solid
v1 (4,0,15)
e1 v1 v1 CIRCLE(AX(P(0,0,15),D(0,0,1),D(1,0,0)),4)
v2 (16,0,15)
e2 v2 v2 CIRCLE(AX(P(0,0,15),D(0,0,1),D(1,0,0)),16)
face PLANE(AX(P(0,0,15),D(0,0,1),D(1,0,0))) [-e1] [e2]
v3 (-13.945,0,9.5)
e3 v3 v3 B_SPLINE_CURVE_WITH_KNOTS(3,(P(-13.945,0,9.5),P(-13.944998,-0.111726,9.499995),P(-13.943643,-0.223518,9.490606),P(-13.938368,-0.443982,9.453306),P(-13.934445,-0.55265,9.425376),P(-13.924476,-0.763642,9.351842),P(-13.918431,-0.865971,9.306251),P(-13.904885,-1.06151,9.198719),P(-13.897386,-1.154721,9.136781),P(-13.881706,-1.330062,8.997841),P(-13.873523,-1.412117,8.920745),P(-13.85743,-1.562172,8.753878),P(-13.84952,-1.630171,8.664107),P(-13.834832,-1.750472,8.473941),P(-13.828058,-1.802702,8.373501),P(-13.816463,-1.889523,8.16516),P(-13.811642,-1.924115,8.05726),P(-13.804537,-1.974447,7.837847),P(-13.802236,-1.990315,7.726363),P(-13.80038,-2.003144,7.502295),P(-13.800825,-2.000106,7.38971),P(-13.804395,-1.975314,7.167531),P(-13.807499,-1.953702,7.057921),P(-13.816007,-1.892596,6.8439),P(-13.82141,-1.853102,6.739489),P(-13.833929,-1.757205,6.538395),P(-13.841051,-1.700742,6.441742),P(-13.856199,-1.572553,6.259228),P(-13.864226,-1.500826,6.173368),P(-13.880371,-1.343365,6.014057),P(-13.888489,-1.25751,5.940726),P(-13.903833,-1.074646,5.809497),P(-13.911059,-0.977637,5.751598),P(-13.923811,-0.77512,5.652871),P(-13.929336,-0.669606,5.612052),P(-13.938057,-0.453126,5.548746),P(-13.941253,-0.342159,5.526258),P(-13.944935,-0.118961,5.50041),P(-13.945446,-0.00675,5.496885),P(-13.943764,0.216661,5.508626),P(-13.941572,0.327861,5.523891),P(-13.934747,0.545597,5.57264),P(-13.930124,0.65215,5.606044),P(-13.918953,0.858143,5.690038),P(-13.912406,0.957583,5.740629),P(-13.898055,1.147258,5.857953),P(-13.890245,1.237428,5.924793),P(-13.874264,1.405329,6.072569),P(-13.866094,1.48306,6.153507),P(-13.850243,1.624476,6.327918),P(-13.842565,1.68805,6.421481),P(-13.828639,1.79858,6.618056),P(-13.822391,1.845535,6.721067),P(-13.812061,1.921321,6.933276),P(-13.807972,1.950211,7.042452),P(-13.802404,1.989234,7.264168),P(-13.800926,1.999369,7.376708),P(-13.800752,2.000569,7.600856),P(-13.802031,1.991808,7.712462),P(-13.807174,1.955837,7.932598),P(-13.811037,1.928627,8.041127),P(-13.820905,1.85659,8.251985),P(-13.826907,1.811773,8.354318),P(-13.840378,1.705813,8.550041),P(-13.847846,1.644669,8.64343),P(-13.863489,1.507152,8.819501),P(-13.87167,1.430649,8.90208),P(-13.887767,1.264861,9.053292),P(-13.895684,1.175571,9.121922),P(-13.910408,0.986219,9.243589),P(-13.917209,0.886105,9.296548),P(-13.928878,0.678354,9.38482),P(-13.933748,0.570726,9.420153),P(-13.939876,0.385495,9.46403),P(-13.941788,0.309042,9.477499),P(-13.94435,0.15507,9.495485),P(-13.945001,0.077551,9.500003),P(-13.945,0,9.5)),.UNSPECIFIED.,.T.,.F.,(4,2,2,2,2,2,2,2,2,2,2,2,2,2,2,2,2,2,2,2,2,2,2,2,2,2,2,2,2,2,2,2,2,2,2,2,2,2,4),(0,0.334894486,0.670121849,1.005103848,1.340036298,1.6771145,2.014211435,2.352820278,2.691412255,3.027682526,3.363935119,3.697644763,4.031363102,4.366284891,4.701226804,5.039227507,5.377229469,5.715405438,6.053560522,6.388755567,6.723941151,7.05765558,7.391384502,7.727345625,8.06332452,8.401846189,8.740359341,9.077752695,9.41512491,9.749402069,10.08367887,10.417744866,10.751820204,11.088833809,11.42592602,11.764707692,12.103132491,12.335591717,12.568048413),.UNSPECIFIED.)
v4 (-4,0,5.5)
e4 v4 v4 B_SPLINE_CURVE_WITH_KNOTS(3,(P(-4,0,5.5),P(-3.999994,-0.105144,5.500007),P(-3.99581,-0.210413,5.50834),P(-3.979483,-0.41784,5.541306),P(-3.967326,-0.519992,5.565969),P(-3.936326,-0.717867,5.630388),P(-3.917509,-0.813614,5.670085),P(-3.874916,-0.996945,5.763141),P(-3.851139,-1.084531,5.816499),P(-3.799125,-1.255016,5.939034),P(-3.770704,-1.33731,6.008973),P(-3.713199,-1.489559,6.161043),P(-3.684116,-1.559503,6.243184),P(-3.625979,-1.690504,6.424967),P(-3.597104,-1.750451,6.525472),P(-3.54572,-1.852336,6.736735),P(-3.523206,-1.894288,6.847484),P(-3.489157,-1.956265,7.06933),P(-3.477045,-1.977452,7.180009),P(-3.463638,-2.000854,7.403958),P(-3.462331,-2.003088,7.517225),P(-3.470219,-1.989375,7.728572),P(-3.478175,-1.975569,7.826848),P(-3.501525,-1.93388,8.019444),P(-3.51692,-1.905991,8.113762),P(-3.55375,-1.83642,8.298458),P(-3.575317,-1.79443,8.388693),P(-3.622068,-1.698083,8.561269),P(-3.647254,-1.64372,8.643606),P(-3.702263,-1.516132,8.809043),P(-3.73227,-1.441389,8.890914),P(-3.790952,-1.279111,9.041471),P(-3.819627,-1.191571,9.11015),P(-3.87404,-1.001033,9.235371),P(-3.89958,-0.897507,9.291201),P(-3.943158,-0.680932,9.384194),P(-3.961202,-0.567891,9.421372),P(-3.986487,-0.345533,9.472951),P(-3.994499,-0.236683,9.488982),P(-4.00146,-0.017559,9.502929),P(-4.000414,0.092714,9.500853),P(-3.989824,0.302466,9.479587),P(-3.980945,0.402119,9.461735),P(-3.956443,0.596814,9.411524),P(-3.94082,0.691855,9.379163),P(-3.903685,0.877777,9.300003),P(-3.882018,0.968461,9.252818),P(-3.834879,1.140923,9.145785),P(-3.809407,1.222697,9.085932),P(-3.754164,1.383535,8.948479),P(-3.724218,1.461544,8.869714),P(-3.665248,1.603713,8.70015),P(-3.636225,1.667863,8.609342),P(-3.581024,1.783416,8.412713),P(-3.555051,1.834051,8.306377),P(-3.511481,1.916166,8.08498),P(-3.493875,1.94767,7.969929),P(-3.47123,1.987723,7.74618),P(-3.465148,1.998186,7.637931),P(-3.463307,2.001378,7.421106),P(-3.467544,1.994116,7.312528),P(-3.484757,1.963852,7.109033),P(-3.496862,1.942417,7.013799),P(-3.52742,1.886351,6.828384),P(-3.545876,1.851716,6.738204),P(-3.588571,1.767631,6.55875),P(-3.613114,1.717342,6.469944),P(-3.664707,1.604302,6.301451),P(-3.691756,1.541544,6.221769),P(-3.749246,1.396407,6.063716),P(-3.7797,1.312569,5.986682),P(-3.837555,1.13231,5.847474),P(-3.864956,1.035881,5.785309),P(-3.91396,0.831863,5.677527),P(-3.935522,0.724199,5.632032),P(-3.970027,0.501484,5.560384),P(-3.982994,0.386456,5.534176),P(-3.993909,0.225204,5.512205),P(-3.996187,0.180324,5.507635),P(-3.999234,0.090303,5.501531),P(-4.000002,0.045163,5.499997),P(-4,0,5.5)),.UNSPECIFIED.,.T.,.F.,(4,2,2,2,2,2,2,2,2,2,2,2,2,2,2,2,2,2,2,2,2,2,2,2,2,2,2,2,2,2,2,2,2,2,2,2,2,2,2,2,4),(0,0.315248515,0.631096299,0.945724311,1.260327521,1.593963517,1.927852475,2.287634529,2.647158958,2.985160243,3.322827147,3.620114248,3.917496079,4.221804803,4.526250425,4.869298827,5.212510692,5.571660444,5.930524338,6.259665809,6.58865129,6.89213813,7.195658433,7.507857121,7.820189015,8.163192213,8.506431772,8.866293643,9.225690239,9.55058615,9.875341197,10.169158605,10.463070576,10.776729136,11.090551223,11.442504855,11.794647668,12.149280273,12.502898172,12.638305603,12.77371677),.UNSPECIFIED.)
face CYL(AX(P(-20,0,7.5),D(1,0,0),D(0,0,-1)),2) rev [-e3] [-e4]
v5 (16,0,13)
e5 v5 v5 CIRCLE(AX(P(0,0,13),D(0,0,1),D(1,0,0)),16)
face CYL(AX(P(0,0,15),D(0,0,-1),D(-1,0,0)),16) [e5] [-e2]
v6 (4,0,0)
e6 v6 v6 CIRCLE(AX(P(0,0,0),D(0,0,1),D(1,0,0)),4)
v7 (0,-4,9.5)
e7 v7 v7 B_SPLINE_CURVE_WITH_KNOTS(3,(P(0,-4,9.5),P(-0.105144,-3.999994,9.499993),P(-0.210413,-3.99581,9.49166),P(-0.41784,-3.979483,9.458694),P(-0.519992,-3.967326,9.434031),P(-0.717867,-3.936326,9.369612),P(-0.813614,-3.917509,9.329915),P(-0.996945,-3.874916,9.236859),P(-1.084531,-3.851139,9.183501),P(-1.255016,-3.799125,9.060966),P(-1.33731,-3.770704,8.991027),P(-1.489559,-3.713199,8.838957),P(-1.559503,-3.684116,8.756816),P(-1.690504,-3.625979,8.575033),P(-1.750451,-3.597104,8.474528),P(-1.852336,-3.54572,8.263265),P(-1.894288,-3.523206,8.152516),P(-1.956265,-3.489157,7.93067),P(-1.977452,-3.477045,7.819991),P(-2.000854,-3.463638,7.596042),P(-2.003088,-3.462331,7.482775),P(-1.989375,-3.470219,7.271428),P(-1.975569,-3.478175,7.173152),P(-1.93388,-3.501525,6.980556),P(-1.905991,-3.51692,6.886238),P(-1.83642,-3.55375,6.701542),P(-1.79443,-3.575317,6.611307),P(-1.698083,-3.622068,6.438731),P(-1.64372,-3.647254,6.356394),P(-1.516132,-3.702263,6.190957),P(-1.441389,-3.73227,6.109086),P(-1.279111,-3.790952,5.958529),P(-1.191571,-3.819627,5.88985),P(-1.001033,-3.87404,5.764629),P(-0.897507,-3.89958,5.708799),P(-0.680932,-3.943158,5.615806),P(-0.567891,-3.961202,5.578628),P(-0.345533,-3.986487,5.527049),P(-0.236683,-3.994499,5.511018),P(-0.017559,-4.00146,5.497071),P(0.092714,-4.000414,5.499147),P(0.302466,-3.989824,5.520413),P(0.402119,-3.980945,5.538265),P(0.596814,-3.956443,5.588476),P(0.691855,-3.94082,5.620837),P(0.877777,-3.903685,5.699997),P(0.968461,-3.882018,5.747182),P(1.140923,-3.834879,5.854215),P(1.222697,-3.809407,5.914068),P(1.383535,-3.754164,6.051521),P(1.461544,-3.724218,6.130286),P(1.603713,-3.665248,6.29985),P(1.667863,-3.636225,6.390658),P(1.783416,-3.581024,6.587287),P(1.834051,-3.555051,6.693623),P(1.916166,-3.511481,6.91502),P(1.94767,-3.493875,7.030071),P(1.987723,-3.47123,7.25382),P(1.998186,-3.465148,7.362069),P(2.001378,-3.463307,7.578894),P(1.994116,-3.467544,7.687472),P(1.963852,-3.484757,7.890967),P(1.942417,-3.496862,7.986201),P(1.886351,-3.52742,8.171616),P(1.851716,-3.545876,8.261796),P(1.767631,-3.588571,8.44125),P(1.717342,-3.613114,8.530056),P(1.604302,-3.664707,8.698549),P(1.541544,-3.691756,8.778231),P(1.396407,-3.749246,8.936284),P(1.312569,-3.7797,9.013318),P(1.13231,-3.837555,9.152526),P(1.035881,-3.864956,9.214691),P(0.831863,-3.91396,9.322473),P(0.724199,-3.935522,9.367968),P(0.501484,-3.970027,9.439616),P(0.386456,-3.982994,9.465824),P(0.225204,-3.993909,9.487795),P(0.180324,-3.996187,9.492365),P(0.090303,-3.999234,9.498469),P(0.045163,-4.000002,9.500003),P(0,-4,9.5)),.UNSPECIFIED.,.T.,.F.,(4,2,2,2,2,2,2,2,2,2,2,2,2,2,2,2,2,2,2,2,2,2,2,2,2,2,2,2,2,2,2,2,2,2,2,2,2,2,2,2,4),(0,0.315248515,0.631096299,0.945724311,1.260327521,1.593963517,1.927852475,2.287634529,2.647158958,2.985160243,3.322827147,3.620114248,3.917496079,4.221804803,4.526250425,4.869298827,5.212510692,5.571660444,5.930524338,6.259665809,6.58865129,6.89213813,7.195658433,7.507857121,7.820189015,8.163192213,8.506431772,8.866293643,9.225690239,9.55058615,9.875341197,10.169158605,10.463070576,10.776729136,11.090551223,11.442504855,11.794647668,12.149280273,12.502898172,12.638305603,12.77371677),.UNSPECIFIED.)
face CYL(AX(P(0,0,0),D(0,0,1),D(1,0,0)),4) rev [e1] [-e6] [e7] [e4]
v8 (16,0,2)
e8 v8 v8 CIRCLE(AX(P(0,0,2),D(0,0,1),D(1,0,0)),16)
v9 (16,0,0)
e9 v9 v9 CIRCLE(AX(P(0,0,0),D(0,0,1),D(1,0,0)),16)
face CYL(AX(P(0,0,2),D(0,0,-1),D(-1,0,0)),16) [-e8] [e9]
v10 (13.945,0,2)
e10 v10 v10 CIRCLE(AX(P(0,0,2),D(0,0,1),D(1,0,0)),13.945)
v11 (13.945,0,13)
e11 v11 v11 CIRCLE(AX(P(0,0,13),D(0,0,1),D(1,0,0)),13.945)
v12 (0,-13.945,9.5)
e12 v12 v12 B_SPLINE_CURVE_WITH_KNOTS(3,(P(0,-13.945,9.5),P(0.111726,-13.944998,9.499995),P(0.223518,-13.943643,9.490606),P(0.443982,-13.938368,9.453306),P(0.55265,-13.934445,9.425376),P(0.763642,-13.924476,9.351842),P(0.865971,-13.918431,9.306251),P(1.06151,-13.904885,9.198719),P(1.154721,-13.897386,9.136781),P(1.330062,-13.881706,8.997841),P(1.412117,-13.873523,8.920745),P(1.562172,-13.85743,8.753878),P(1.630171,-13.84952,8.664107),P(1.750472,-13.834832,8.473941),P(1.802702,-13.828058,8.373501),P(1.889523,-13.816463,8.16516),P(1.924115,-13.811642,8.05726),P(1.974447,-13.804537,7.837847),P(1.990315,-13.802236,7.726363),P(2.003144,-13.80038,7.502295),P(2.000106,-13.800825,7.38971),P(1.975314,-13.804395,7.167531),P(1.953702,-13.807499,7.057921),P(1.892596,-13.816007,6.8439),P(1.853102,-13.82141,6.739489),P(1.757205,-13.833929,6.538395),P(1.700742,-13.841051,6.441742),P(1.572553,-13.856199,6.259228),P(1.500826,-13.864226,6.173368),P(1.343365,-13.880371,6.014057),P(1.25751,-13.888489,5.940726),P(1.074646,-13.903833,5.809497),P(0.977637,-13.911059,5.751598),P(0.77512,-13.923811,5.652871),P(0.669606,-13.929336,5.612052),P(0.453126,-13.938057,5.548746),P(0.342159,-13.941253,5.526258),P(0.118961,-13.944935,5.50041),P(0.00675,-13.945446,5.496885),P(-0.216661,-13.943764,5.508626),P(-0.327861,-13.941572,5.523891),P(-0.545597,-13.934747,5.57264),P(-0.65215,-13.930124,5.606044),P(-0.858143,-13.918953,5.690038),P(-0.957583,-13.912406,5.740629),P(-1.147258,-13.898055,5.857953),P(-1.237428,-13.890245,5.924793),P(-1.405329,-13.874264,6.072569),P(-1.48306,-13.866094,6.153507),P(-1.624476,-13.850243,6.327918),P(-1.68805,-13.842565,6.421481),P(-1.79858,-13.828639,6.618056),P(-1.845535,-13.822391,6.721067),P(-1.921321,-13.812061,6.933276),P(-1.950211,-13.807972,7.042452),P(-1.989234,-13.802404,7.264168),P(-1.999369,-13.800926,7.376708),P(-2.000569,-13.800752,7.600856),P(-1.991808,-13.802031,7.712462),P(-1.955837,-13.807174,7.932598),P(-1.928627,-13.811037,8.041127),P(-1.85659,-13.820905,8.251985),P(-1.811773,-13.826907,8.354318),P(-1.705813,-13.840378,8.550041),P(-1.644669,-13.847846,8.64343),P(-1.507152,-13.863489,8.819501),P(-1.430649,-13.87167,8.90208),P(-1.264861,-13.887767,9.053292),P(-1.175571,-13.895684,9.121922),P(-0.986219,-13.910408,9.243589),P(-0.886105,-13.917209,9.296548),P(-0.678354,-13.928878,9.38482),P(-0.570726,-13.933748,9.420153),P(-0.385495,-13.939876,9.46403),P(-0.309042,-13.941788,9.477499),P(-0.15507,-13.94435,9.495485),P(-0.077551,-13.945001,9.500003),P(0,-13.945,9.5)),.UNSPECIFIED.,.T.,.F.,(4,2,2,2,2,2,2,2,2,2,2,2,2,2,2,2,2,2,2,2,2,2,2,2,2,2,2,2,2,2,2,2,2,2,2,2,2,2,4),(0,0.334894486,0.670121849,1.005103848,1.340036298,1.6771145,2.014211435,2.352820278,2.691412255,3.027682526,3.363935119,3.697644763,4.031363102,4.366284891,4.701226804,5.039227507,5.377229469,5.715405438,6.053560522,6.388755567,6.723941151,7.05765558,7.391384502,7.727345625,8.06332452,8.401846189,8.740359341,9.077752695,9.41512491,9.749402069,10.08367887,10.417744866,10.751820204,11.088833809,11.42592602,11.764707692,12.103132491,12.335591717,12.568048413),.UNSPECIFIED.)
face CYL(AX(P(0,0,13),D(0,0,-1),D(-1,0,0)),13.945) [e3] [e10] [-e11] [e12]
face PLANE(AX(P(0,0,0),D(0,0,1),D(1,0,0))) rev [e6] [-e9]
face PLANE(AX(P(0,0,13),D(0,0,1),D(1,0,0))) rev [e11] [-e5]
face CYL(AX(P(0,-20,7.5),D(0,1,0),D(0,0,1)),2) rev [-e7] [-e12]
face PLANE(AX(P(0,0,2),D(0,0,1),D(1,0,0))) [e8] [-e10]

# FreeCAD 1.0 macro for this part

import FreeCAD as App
import Part
import Sketcher
from FreeCAD import Vector
Q = App.Units.Quantity

doc = App.newDocument("Part")
body = doc.addObject("PartDesign::Body", "Body")

# Sketch on XY plane
sketch1 = body.newObject("Sketcher::SketchObject", "Sketch")
sketch1.AttachmentSupport = (doc.getObject("XY_Plane"), [""])
sketch1.MapMode = "FlatFace"
sketch1.addGeometry(Part.Circle(Vector(0, 0, 0), Vector(0, 0, 1), 16), False)
sketch1.addConstraint([
    Sketcher.Constraint("Coincident", 0, 3, -1, 1),
    Sketcher.Constraint("Diameter", 0, Q("32 mm")),
])
pad1 = body.newObject("PartDesign::Pad", "Pad")
pad1.Profile = sketch1
pad1.Length = 2

# Sketch on XY plane
sketch2 = body.newObject("Sketcher::SketchObject", "Sketch001")
sketch2.AttachmentSupport = (doc.getObject("XY_Plane"), [""])
sketch2.MapMode = "FlatFace"
sketch2.AttachmentOffset = App.Placement(Vector(0, 0, 2), App.Rotation())
sketch2.addGeometry(Part.Circle(Vector(0, 0, 0), Vector(0, 0, 1), 14), False)
sketch2.addConstraint([
    Sketcher.Constraint("Coincident", 0, 3, -1, 1),
    Sketcher.Constraint("Diameter", 0, Q("27.89 mm")),
])
pad2 = body.newObject("PartDesign::Pad", "Pad001")
pad2.Profile = sketch2
pad2.Length = 11

# Sketch on XY plane
sketch3 = body.newObject("Sketcher::SketchObject", "Sketch002")
sketch3.AttachmentSupport = (doc.getObject("XY_Plane"), [""])
sketch3.MapMode = "FlatFace"
sketch3.AttachmentOffset = App.Placement(Vector(0, 0, 13), App.Rotation())
sketch3.addGeometry(Part.Circle(Vector(0, 0, 0), Vector(0, 0, 1), 16), False)
sketch3.addConstraint([
    Sketcher.Constraint("Coincident", 0, 3, -1, 1),
    Sketcher.Constraint("Diameter", 0, Q("32 mm")),
])
pad3 = body.newObject("PartDesign::Pad", "Pad002")
pad3.Profile = sketch3
pad3.Length = 2

# Sketch on XY plane
sketch4 = body.newObject("Sketcher::SketchObject", "Sketch003")
sketch4.AttachmentSupport = (doc.getObject("XY_Plane"), [""])
sketch4.MapMode = "FlatFace"
sketch4.AttachmentOffset = App.Placement(Vector(0, 0, 15), App.Rotation())
sketch4.addGeometry(Part.Circle(Vector(0, 0, 0), Vector(0, 0, 1), 4), False)
sketch4.addConstraint([
    Sketcher.Constraint("Coincident", 0, 3, -1, 1),
    Sketcher.Constraint("Diameter", 0, Q("8 mm")),
])
pocket1 = body.newObject("PartDesign::Pocket", "Pocket")
pocket1.Profile = sketch4
pocket1.Length = 15

# Sketch on XZ plane
sketch5 = body.newObject("Sketcher::SketchObject", "Sketch004")
sketch5.AttachmentSupport = (doc.getObject("XZ_Plane"), [""])
sketch5.MapMode = "FlatFace"
sketch5.addGeometry(Part.Circle(Vector(0, 7.5, 0), Vector(0, 0, 1), 2), False)
sketch5.addConstraint([
    Sketcher.Constraint("PointOnObject", 0, 3, -2),
    Sketcher.Constraint("Diameter", 0, Q("4 mm")),
    Sketcher.Constraint("DistanceY", -1, 1, 0, 3, Q("7.5 mm")),
])
pocket2 = body.newObject("PartDesign::Pocket", "Pocket001")
pocket2.Profile = sketch5
pocket2.Length = 20
pocket2.Reversed = True

# Sketch on YZ plane
sketch6 = body.newObject("Sketcher::SketchObject", "Sketch005")
sketch6.AttachmentSupport = (doc.getObject("YZ_Plane"), [""])
sketch6.MapMode = "FlatFace"
sketch6.addGeometry(Part.Circle(Vector(0, 7.5, 0), Vector(0, 0, 1), 2), False)
sketch6.addConstraint([
    Sketcher.Constraint("PointOnObject", 0, 3, -2),
    Sketcher.Constraint("Diameter", 0, Q("4 mm")),
    Sketcher.Constraint("DistanceY", -1, 1, 0, 3, Q("7.5 mm")),
])
pocket3 = body.newObject("PartDesign::Pocket", "Pocket002")
pocket3.Profile = sketch6
pocket3.Length = 20

doc.recompute()
